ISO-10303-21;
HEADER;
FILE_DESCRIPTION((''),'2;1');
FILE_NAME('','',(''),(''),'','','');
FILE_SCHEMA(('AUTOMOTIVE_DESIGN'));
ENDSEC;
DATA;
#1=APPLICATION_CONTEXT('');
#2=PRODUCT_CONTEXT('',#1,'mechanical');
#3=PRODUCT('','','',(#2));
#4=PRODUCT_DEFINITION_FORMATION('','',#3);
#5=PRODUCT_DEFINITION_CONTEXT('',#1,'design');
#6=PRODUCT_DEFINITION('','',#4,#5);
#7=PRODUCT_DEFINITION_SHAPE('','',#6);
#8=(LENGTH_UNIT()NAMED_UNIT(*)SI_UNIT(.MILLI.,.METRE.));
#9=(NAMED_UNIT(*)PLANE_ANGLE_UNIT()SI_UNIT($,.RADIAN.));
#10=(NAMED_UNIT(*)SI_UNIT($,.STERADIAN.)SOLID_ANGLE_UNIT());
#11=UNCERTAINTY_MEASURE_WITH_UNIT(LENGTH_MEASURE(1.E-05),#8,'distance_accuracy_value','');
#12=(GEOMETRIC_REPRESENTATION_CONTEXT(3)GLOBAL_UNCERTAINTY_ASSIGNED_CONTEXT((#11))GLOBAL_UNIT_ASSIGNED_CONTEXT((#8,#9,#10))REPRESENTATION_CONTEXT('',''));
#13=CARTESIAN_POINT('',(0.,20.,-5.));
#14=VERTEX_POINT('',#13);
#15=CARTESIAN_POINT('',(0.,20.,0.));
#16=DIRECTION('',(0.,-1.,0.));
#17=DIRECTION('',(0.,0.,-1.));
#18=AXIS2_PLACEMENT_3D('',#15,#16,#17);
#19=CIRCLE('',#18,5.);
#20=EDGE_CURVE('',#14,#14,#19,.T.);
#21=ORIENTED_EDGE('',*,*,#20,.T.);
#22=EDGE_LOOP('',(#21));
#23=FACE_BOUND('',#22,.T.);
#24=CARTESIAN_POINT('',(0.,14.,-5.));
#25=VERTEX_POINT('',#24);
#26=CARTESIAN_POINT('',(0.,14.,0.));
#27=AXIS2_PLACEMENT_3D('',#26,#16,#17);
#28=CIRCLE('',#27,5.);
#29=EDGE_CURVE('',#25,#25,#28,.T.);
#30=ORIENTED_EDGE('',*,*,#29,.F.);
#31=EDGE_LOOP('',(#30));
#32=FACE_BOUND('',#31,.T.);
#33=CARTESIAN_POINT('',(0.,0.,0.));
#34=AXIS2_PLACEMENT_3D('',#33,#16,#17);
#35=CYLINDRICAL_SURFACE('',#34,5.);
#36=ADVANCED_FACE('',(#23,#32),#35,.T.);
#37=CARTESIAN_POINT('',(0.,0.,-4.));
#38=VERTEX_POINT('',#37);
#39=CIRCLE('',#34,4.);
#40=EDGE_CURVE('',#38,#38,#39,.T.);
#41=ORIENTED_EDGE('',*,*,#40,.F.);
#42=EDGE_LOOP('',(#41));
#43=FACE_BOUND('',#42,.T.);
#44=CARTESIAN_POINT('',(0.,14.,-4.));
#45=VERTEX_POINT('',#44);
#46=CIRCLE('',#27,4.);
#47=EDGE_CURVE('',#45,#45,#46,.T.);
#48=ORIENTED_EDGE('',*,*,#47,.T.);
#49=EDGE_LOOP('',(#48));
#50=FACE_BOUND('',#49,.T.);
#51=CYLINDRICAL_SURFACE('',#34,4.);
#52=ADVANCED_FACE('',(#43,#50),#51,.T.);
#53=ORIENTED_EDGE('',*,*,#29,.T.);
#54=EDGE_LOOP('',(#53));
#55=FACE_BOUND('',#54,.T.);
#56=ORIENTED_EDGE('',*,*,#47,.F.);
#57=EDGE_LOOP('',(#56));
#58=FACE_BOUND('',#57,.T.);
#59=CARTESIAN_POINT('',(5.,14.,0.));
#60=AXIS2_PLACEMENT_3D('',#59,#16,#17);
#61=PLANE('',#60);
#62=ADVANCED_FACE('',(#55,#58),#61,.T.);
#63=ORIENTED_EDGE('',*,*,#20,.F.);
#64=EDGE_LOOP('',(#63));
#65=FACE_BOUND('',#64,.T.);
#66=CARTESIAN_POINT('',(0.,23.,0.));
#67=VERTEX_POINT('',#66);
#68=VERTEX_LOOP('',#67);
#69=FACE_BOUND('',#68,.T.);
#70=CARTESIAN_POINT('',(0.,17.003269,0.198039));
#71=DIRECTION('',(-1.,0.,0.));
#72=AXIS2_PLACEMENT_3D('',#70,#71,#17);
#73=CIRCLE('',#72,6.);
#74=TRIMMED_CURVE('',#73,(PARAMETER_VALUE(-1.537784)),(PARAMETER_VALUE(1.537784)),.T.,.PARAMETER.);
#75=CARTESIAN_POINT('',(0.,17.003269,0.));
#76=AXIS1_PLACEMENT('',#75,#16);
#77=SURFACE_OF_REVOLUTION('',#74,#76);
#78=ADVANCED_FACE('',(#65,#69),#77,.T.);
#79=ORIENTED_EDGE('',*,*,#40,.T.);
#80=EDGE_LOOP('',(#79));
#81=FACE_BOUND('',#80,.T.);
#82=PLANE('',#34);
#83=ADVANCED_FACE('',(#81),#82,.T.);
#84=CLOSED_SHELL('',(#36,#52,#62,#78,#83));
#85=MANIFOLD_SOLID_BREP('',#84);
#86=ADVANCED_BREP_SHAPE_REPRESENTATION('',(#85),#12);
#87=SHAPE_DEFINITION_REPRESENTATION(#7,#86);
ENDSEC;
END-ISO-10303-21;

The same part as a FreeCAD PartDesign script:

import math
import FreeCAD as App
import Part
import Sketcher
from FreeCAD import Vector

doc = App.newDocument("Part")
params = doc.addObject("Spreadsheet::Sheet", "Params")
for row, (alias, value) in enumerate([
    ("sketch1_radius", "6 mm"),
    ("sketch1_width", "4 mm"),
    ("sketch1_width2", "1 mm"),
    ("sketch1_height", "23 mm"),
    ("sketch1_height2", "14 mm"),
    ("revolution_angle", "360 deg"),
], start=1):
    params.set(f"A{row}", alias)
    params.set(f"B{row}", "=" + value)
    params.setAlias(f"B{row}", alias)

body = doc.addObject("PartDesign::Body", "Body")

# Sketch on XY plane
sketch1 = body.newObject("Sketcher::SketchObject", "Sketch")
sketch1.AttachmentSupport = (doc.getObject("XY_Plane"), [""])
sketch1.MapMode = "FlatFace"
sketch1.addGeometry([
    Part.LineSegment(Vector(0, 23, 0), Vector(0, 0, 0)),  # 0
    Part.LineSegment(Vector(0, 0, 0), Vector(4, 0, 0)),  # 1
    Part.LineSegment(Vector(4, 0, 0), Vector(4, 14, 0)),  # 2
    Part.LineSegment(Vector(4, 14, 0), Vector(5, 14, 0)),  # 3
    Part.LineSegment(Vector(5, 14, 0), Vector(5, 20, 0)),  # 4
    Part.ArcOfCircle(Part.Circle(Vector(-0.2, 17, 0), Vector(0, 0, 1), 6), math.radians(30), math.radians(88)),  # 5
], False)
sketch1.addConstraint([
    Sketcher.Constraint("Coincident", 0, 2, 1, 1),
    Sketcher.Constraint("Coincident", 1, 2, 2, 1),
    Sketcher.Constraint("Coincident", 2, 2, 3, 1),
    Sketcher.Constraint("Coincident", 3, 2, 4, 1),
    Sketcher.Constraint("Coincident", 4, 2, 5, 1),
    Sketcher.Constraint("Coincident", 5, 2, 0, 1),
    Sketcher.Constraint("Vertical", 0),
    Sketcher.Constraint("Horizontal", 1),
    Sketcher.Constraint("Vertical", 2),
    Sketcher.Constraint("Horizontal", 3),
    Sketcher.Constraint("Vertical", 4),
    Sketcher.Constraint("Coincident", 0, 2, -1, 1),
    Sketcher.Constraint("Radius", 5, 6.0),
    Sketcher.Constraint("DistanceX", 1, 1, 1, 2, 4.0),
    Sketcher.Constraint("DistanceX", 3, 1, 3, 2, 1.0),
    Sketcher.Constraint("DistanceY", 0, 2, 0, 1, 23.0),
    Sketcher.Constraint("DistanceY", 2, 1, 2, 2, 14.0),
    Sketcher.Constraint("DistanceY", 4, 1, 4, 2, 6.0),
])
sketch1.setExpression("Constraints[12]", "Params.sketch1_radius")
sketch1.setExpression("Constraints[13]", "Params.sketch1_width")
sketch1.setExpression("Constraints[14]", "Params.sketch1_width2")
sketch1.setExpression("Constraints[15]", "Params.sketch1_height")
sketch1.setExpression("Constraints[16]", "Params.sketch1_height2")
revolution = body.newObject("PartDesign::Revolution", "Revolution")
revolution.Profile = sketch1
revolution.ReferenceAxis = (sketch1, ["V_Axis"])
revolution.setExpression("Angle", "Params.revolution_angle")

doc.recompute()
